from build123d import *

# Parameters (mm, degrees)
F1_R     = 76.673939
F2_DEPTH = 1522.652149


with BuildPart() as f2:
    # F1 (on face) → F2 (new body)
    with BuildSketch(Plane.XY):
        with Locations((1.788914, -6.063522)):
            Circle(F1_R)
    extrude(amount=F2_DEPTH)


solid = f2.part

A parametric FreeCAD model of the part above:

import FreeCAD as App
import Part
import Sketcher
from FreeCAD import Vector

doc = App.newDocument("Part")
body = doc.addObject("PartDesign::Body", "Body")

# Sketch on XY plane
sketch1 = body.newObject("Sketcher::SketchObject", "Sketch")
sketch1.AttachmentSupport = (doc.getObject("XY_Plane"), [""])
sketch1.MapMode = "FlatFace"
sketch1.addGeometry(Part.Circle(Vector(2, -6, 0), Vector(0, 0, 1), 77), False)
sketch1.addConstraint(Sketcher.Constraint("Diameter", 0, 153.347878))
sketch1.addConstraint(Sketcher.Constraint("DistanceX", -1, 1, 0, 3, 1.788914))
sketch1.addConstraint(Sketcher.Constraint("DistanceY", 0, 3, -1, 1, 6.063522))
pad1 = body.newObject("PartDesign::Pad", "Pad")
pad1.Profile = sketch1
pad1.Length = 1522.652149

doc.recompute()
